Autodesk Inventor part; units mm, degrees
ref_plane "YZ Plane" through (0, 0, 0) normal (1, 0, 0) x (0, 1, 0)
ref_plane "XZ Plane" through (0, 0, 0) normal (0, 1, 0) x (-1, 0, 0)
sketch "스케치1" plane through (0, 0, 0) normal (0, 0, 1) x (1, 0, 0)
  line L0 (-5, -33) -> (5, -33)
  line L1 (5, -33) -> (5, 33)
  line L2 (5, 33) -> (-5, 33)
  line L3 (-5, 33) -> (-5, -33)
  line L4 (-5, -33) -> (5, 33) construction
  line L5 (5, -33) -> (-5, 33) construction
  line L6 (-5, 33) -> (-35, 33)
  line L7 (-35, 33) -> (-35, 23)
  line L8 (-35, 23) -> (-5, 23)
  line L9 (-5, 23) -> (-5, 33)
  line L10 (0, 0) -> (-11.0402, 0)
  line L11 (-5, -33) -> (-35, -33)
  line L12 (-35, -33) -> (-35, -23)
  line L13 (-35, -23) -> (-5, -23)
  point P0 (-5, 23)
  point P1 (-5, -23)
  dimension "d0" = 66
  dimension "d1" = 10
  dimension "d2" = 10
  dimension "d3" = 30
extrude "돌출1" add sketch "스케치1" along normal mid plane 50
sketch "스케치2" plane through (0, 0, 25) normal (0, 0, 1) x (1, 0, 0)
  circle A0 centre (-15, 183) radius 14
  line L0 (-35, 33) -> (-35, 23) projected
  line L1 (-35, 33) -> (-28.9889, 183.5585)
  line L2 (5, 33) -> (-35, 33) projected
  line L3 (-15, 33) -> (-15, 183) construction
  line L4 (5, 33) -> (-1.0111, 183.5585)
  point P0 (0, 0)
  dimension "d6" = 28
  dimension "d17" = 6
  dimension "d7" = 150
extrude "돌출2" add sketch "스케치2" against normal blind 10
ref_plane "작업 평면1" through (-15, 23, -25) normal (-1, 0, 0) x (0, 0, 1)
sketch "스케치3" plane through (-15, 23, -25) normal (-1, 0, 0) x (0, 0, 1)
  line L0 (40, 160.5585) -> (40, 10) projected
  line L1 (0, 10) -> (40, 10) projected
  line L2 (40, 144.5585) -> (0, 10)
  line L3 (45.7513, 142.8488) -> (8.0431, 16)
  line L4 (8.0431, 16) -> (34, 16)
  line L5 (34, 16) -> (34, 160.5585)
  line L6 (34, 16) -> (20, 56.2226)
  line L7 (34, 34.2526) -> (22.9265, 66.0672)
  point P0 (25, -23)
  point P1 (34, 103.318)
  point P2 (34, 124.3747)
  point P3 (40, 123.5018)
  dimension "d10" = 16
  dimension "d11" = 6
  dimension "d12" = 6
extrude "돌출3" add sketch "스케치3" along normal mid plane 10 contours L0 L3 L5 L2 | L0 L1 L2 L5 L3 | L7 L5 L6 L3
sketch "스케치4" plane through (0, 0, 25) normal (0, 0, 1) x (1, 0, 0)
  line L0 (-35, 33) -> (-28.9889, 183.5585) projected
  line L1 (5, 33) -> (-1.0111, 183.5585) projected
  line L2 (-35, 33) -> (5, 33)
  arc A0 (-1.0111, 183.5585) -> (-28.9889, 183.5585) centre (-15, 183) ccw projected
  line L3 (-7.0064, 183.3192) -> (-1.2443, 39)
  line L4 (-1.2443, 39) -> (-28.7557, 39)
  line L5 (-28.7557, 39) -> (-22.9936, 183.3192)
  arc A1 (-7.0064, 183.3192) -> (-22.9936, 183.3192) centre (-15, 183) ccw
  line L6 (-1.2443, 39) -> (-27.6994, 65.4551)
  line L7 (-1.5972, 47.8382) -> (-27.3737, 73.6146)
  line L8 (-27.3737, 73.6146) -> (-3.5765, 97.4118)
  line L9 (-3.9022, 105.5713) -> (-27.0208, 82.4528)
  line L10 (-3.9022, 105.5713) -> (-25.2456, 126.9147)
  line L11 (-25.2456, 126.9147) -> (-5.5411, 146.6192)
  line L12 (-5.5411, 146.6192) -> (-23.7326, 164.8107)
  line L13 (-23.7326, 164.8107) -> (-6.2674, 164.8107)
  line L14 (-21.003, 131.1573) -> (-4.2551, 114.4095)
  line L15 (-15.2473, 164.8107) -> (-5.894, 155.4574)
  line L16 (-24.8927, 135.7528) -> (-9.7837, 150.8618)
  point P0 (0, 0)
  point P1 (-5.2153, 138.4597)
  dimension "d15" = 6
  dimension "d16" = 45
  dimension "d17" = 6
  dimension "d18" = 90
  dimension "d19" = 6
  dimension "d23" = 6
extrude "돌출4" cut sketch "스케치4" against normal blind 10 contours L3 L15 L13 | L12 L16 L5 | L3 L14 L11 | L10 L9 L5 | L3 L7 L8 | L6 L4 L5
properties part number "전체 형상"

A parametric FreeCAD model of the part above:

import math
import FreeCAD as App
import Part
import Sketcher

V = App.Vector
Q = App.Units.Quantity

doc = App.newDocument("Part")
body = doc.addObject("PartDesign::Body", "Body")

# Sketch on XY plane
sketch1 = body.newObject("Sketcher::SketchObject", "Sketch")
sketch1.AttachmentSupport = (doc.getObject("XY_Plane"), [""])
sketch1.MapMode = "FlatFace"
sketch1.addGeometry([
    Part.LineSegment(V(-5, -23, 0), V(-35, -23, 0)),  # 0
    Part.LineSegment(V(-35, -23, 0), V(-35, -33, 0)),  # 1
    Part.LineSegment(V(-35, -33, 0), V(5, -33, 0)),  # 2
    Part.LineSegment(V(5, -33, 0), V(5, 33, 0)),  # 3
    Part.LineSegment(V(5, 33, 0), V(-35, 33, 0)),  # 4
    Part.LineSegment(V(-35, 33, 0), V(-35, 23, 0)),  # 5
    Part.LineSegment(V(-35, 23, 0), V(-5, 23, 0)),  # 6
    Part.LineSegment(V(-5, 23, 0), V(-5, -23, 0)),  # 7
], False)
sketch1.addConstraint([
    Sketcher.Constraint("Coincident", 0, 2, 1, 1),
    Sketcher.Constraint("Coincident", 1, 2, 2, 1),
    Sketcher.Constraint("Coincident", 2, 2, 3, 1),
    Sketcher.Constraint("Coincident", 3, 2, 4, 1),
    Sketcher.Constraint("Coincident", 4, 2, 5, 1),
    Sketcher.Constraint("Coincident", 5, 2, 6, 1),
    Sketcher.Constraint("Coincident", 6, 2, 7, 1),
    Sketcher.Constraint("Coincident", 7, 2, 0, 1),
    Sketcher.Constraint("Horizontal", 0),
    Sketcher.Constraint("Vertical", 1),
    Sketcher.Constraint("Horizontal", 2),
    Sketcher.Constraint("Vertical", 3),
    Sketcher.Constraint("Horizontal", 4),
    Sketcher.Constraint("Vertical", 5),
    Sketcher.Constraint("Horizontal", 6),
    Sketcher.Constraint("Vertical", 7),
    Sketcher.Constraint("Symmetric", 1, 2, 4, 2, -1),
    Sketcher.Constraint("Equal", 1, 5),
    Sketcher.Constraint("DistanceX", 0, 2, 0, 1, Q("30 mm")),
    Sketcher.Constraint("DistanceY", 1, 2, 1, 1, Q("10 mm")),
    Sketcher.Constraint("DistanceY", 3, 1, 3, 2, Q("66 mm")),
    Sketcher.Constraint("DistanceX", 6, 2, 3, 2, Q("10 mm")),
    Sketcher.Constraint("DistanceX", 0, 2, -1, 1, Q("35 mm")),
])
pad1 = body.newObject("PartDesign::Pad", "Pad")
pad1.Profile = sketch1
pad1.Length = 50
pad1.Midplane = True

# Sketch on XY plane
sketch2 = body.newObject("Sketcher::SketchObject", "Sketch001")
sketch2.AttachmentSupport = (doc.getObject("XY_Plane"), [""])
sketch2.MapMode = "FlatFace"
sketch2.AttachmentOffset = App.Placement(V(0, 0, 25), App.Rotation())
sketch2.addGeometry([
    Part.ArcOfCircle(Part.Circle(V(-15, 183, 0), V(0, 0, 1), 14), math.radians(2), math.radians(178)),
    Part.LineSegment(V(-29, 184, 0), V(-35, 33, 0)),
    Part.LineSegment(V(-35, 33, 0), V(5, 33, 0)),
    Part.LineSegment(V(5, 33, 0), V(-1, 184, 0)),
], False)
sketch2.addConstraint([
    Sketcher.Constraint("Tangent", 0, 2, 1, 1),
    Sketcher.Constraint("Coincident", 1, 2, 2, 1),
    Sketcher.Constraint("Coincident", 2, 2, 3, 1),
    Sketcher.Constraint("Tangent", 3, 2, 0, 1),
    Sketcher.Constraint("Horizontal", 2),
    Sketcher.Constraint("Horizontal", 0, 2, 3, 2),
    Sketcher.Constraint("Radius", 0, Q("14 mm")),
    Sketcher.Constraint("DistanceY", 1, 2, 0, 3, Q("150 mm")),
    Sketcher.Constraint("DistanceX", 2, 1, 2, 2, Q("40 mm")),
    Sketcher.Constraint("DistanceX", 0, 3, -1, 1, Q("15 mm")),
    Sketcher.Constraint("DistanceY", -1, 1, 0, 3, Q("183 mm")),
])
pad2 = body.newObject("PartDesign::Pad", "Pad001")
pad2.Profile = sketch2
pad2.Length = 10
pad2.Reversed = True

# Sketch on YZ plane
sketch3 = body.newObject("Sketcher::SketchObject", "Sketch002")
sketch3.AttachmentSupport = (doc.getObject("YZ_Plane"), [""])
sketch3.MapMode = "FlatFace"
sketch3.AttachmentOffset = App.Placement(V(0, 0, -15), App.Rotation())
sketch3.addGeometry([
    Part.LineSegment(V(168, 15, 0), V(33, -25, 0)),  # 0
    Part.LineSegment(V(33, -25, 0), V(33, 15, 0)),  # 1
    Part.LineSegment(V(33, 15, 0), V(168, 15, 0)),  # 2
    Part.LineSegment(V(126, 9, 0), V(57, 9, 0)),  # 3
    Part.LineSegment(V(57, 9, 0), V(89, -2, 0)),  # 4
    Part.LineSegment(V(89, -2, 0), V(126, 9, 0)),  # 5
    Part.LineSegment(V(39, -17, 0), V(79, -5, 0)),  # 6
    Part.LineSegment(V(79, -5, 0), V(39, 9, 0)),  # 7
    Part.LineSegment(V(39, 9, 0), V(39, -17, 0)),  # 8
], False)
sketch3.addConstraint([
    Sketcher.Constraint("Coincident", 0, 2, 1, 1),
    Sketcher.Constraint("Coincident", 1, 2, 2, 1),
    Sketcher.Constraint("Coincident", 2, 2, 0, 1),
    Sketcher.Constraint("Coincident", 3, 2, 4, 1),
    Sketcher.Constraint("Coincident", 4, 2, 5, 1),
    Sketcher.Constraint("Coincident", 5, 2, 3, 1),
    Sketcher.Constraint("Coincident", 6, 2, 7, 1),
    Sketcher.Constraint("Coincident", 7, 2, 8, 1),
    Sketcher.Constraint("Coincident", 8, 2, 6, 1),
    Sketcher.Constraint("Vertical", 1),
    Sketcher.Constraint("Horizontal", 2),
    Sketcher.Constraint("Horizontal", 3),
    Sketcher.Constraint("Vertical", 8),
    Sketcher.Constraint("Parallel", 0, 5),
    Sketcher.Constraint("Parallel", 5, 6),
    Sketcher.Constraint("Parallel", 4, 7),
    Sketcher.Constraint("Horizontal", 5, 2, 7, 2),
    Sketcher.Constraint("DistanceY", 3, 2, 1, 2, Q("6 mm")),
    Sketcher.Constraint("DistanceX", 1, 2, 7, 2, Q("6 mm")),
    Sketcher.Constraint("DistanceY", 1, 1, 1, 2, Q("40 mm")),
    Sketcher.Constraint("DistanceX", -1, 1, 0, 2, Q("33 mm")),
    Sketcher.Constraint("DistanceY", 0, 2, -1, 1, Q("25 mm")),
    Sketcher.Constraint("DistanceY", 6, 2, -1, 1, Q("5 mm")),
    Sketcher.Constraint("Angle", 4, Q("-19.1911 deg")),
    Sketcher.Constraint("DistanceY", 8, 2, 8, 1, Q("25.957 mm")),
    Sketcher.Constraint("DistanceX", 3, 2, 6, 2, Q("21.97 mm")),
    Sketcher.Constraint("DistanceX", 3, 2, 3, 1, Q("69.0653 mm")),
])
pad3 = body.newObject("PartDesign::Pad", "Pad002")
pad3.Profile = sketch3
pad3.Length = 10
pad3.Midplane = True

# Sketch on XY plane
sketch4 = body.newObject("Sketcher::SketchObject", "Sketch003")
sketch4.AttachmentSupport = (doc.getObject("XY_Plane"), [""])
sketch4.MapMode = "FlatFace"
sketch4.AttachmentOffset = App.Placement(V(0, 0, 25), App.Rotation())
sketch4.addGeometry([
    Part.LineSegment(V(-6, 155, 0), V(-6, 165, 0)),  # 0
    Part.LineSegment(V(-6, 165, 0), V(-15, 165, 0)),  # 1
    Part.LineSegment(V(-15, 165, 0), V(-6, 155, 0)),  # 2
    Part.LineSegment(V(-10, 151, 0), V(-24, 165, 0)),  # 3
    Part.LineSegment(V(-24, 165, 0), V(-25, 136, 0)),  # 4
    Part.LineSegment(V(-25, 136, 0), V(-10, 151, 0)),  # 5
    Part.LineSegment(V(-4, 114, 0), V(-6, 147, 0)),  # 6
    Part.LineSegment(V(-6, 147, 0), V(-21, 131, 0)),  # 7
    Part.LineSegment(V(-21, 131, 0), V(-4, 114, 0)),  # 8
    Part.LineSegment(V(-4, 106, 0), V(-25, 127, 0)),  # 9
    Part.LineSegment(V(-25, 127, 0), V(-27, 82, 0)),  # 10
    Part.LineSegment(V(-27, 82, 0), V(-4, 106, 0)),  # 11
    Part.LineSegment(V(-2, 48, 0), V(-4, 97, 0)),  # 12
    Part.LineSegment(V(-4, 97, 0), V(-27, 74, 0)),  # 13
    Part.LineSegment(V(-27, 74, 0), V(-2, 48, 0)),  # 14
    Part.LineSegment(V(-1, 39, 0), V(-28, 65, 0)),  # 15
    Part.LineSegment(V(-28, 65, 0), V(-29, 39, 0)),  # 16
    Part.LineSegment(V(-29, 39, 0), V(-1, 39, 0)),  # 17
], False)
sketch4.addConstraint([
    Sketcher.Constraint("Coincident", 0, 2, 1, 1),
    Sketcher.Constraint("Coincident", 1, 2, 2, 1),
    Sketcher.Constraint("Coincident", 2, 2, 0, 1),
    Sketcher.Constraint("Coincident", 3, 2, 4, 1),
    Sketcher.Constraint("Coincident", 4, 2, 5, 1),
    Sketcher.Constraint("Coincident", 5, 2, 3, 1),
    Sketcher.Constraint("Coincident", 6, 2, 7, 1),
    Sketcher.Constraint("Coincident", 7, 2, 8, 1),
    Sketcher.Constraint("Coincident", 8, 2, 6, 1),
    Sketcher.Constraint("Coincident", 9, 2, 10, 1),
    Sketcher.Constraint("Coincident", 10, 2, 11, 1),
    Sketcher.Constraint("Coincident", 11, 2, 9, 1),
    Sketcher.Constraint("Coincident", 12, 2, 13, 1),
    Sketcher.Constraint("Coincident", 13, 2, 14, 1),
    Sketcher.Constraint("Coincident", 14, 2, 12, 1),
    Sketcher.Constraint("Coincident", 15, 2, 16, 1),
    Sketcher.Constraint("Coincident", 16, 2, 17, 1),
    Sketcher.Constraint("Coincident", 17, 2, 15, 1),
    Sketcher.Constraint("Horizontal", 1),
    Sketcher.Constraint("Horizontal", 17),
    Sketcher.Constraint("Parallel", 2, 3),
    Sketcher.Constraint("Perpendicular", 3, 5),
    Sketcher.Constraint("Parallel", 0, 6),
    Sketcher.Constraint("Parallel", 5, 7),
    Sketcher.Constraint("Perpendicular", 7, 8),
    Sketcher.Constraint("Parallel", 8, 9),
    Sketcher.Constraint("Parallel", 4, 10),
    Sketcher.Constraint("Perpendicular", 9, 11),
    Sketcher.Constraint("Parallel", 6, 12),
    Sketcher.Constraint("Parallel", 11, 13),
    Sketcher.Constraint("Perpendicular", 13, 14),
    Sketcher.Constraint("Parallel", 14, 15),
    Sketcher.Constraint("Parallel", 10, 16),
    Sketcher.Constraint("Horizontal", 1, 2, 3, 2),
    Sketcher.Constraint("Angle", 2, Q("-45 deg")),
    Sketcher.Constraint("DistanceY", -1, 1, 16, 2, Q("39 mm")),
    Sketcher.Constraint("DistanceX", 1, 2, 1, 1, Q("8.98 mm")),
    Sketcher.Constraint("DistanceY", 7, 2, 2, 2, Q("24.3 mm")),
    Sketcher.Constraint("DistanceY", 10, 2, 4, 2, Q("53.3 mm")),
    Sketcher.Constraint("DistanceY", 13, 2, 9, 2, Q("53.3 mm")),
    Sketcher.Constraint("Distance", 4, Q("29.081 mm")),
    Sketcher.Constraint("Distance", 8, Q("23.685 mm")),
    Sketcher.Constraint("Distance", 12, Q("49.613 mm")),
    Sketcher.Constraint("DistanceX", 17, 1, 17, 2, Q("27.5114 mm")),
    Sketcher.Constraint("DistanceX", 2, 2, -1, 1, Q("5.894 mm")),
    Sketcher.Constraint("DistanceX", 6, 2, -1, 1, Q("5.541 mm")),
    Sketcher.Constraint("DistanceX", 7, 2, -1, 1, Q("21.003 mm")),
    Sketcher.Constraint("DistanceY", -1, 1, 15, 2, Q("65.455 mm")),
    Sketcher.Constraint("DistanceY", 9, 2, 4, 2, Q("8.838 mm")),
    Sketcher.Constraint("DistanceX", 9, 2, 5, 2, Q("15.462 mm")),
    Sketcher.Constraint("DistanceX", 8, 2, 11, 2, Q("0.353 mm")),
    Sketcher.Constraint("DistanceX", 13, 2, 10, 2, Q("0.353 mm")),
    Sketcher.Constraint("DistanceY", 14, 2, 15, 2, Q("17.617 mm")),
    Sketcher.Constraint("DistanceX", 15, 2, 12, 2, Q("24.123 mm")),
])
pocket1 = body.newObject("PartDesign::Pocket", "Pocket")
pocket1.Profile = sketch4
pocket1.Length = 10

doc.recompute()
